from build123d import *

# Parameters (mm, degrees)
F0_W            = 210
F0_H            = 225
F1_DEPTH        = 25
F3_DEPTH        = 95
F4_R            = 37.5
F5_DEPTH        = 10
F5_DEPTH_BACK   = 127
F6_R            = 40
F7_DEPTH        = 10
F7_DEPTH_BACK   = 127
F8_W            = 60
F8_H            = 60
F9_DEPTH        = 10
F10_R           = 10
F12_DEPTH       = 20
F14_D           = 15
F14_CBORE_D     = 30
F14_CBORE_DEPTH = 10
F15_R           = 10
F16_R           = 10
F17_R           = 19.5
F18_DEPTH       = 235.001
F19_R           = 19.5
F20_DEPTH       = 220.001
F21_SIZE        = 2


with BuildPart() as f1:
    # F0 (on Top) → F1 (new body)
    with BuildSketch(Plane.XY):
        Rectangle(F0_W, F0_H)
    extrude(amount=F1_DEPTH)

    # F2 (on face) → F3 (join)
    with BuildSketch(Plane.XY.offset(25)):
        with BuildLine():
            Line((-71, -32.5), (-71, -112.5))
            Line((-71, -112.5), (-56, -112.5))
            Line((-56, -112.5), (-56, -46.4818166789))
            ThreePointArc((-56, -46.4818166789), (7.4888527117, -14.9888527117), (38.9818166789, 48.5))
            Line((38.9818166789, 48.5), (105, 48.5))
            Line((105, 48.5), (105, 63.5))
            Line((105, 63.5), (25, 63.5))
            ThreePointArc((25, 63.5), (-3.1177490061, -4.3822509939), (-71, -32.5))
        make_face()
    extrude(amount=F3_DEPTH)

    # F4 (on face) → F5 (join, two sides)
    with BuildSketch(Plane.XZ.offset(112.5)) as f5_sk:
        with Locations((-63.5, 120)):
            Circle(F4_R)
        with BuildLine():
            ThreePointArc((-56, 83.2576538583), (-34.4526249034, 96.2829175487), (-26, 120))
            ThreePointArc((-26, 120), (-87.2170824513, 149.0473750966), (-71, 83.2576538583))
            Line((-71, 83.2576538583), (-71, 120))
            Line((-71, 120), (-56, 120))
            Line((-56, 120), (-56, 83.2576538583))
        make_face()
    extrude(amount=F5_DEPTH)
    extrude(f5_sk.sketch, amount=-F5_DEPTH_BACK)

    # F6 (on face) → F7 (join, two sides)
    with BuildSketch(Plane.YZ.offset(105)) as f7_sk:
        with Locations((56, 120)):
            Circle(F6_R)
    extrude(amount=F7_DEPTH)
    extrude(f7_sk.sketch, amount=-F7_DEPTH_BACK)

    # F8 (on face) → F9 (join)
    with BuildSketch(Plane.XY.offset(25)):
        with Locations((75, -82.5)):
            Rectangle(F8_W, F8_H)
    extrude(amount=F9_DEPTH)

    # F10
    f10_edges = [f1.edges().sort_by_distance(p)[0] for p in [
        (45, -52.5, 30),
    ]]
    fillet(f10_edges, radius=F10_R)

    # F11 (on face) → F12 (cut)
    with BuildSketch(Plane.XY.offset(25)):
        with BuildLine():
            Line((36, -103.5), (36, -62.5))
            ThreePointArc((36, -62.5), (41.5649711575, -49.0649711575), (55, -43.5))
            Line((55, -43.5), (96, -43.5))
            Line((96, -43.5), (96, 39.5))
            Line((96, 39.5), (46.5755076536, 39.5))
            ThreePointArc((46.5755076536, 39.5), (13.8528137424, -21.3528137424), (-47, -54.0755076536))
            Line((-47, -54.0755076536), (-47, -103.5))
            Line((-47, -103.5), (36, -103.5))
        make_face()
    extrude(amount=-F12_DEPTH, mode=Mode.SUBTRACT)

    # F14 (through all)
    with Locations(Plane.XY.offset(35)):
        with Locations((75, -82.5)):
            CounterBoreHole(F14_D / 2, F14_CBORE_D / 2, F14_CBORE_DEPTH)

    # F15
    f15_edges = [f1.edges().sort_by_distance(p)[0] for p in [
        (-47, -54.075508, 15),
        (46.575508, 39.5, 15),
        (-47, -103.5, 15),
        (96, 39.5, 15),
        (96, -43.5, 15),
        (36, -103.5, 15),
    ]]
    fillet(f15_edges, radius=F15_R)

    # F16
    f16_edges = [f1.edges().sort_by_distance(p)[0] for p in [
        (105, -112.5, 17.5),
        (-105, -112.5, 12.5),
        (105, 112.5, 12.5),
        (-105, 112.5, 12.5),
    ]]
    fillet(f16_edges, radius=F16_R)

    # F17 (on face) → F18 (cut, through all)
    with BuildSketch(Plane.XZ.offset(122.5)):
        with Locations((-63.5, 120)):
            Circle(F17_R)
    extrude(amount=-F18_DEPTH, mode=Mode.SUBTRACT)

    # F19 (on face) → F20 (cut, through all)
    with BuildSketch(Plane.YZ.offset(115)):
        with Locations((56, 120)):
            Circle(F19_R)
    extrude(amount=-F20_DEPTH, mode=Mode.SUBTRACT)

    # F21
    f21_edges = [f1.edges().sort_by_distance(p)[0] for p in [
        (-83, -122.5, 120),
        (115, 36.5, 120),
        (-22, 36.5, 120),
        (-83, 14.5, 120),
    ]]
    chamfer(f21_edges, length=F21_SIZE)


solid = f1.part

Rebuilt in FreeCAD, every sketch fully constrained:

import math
import FreeCAD as App
import Part
import Sketcher

V = App.Vector


def edges_at(feature, points):
    """Names of the edges that pass closest to the given points."""
    edges = feature.Shape.Edges
    near = lambda p: min(range(len(edges)), key=lambda i: edges[i].distToShape(Part.Vertex(*p))[0])
    return sorted({f"Edge{near(p) + 1}" for p in points})

doc = App.newDocument("Part")
body = doc.addObject("PartDesign::Body", "Body")

# Sketch on XY plane
sketch1 = doc.addObject("Sketcher::SketchObject", "Sketch")
body.addObject(sketch1)
sketch1.AttachmentSupport = (doc.XY_Plane, [""])
sketch1.MapMode = "FlatFace"
sketch1.addGeometry([
    Part.LineSegment(V(-105, 112.5, 0), V(-105, -112.5, 0)),
    Part.LineSegment(V(-105, -112.5, 0), V(105, -112.5, 0)),
    Part.LineSegment(V(105, -112.5, 0), V(105, 112.5, 0)),
    Part.LineSegment(V(105, 112.5, 0), V(-105, 112.5, 0)),
], False)
sketch1.addConstraint([
    Sketcher.Constraint("Coincident", 0, 2, 1, 1),
    Sketcher.Constraint("Coincident", 1, 2, 2, 1),
    Sketcher.Constraint("Coincident", 2, 2, 3, 1),
    Sketcher.Constraint("Coincident", 3, 2, 0, 1),
    Sketcher.Constraint("Vertical", 0),
    Sketcher.Constraint("Horizontal", 1),
    Sketcher.Constraint("Vertical", 2),
    Sketcher.Constraint("Horizontal", 3),
    Sketcher.Constraint("Symmetric", 0, 2, 2, 2, -1, 1),
    Sketcher.Constraint("DistanceX", 1, 1, 1, 2, 210.0),
    Sketcher.Constraint("DistanceY", 0, 2, 0, 1, 225.0),
])
pad1 = doc.addObject("PartDesign::Pad", "Pad")
body.addObject(pad1)
pad1.Profile = sketch1
pad1.Length = 25

# Sketch on XY plane
sketch2 = doc.addObject("Sketcher::SketchObject", "Sketch001")
body.addObject(sketch2)
sketch2.AttachmentSupport = (doc.XY_Plane, [""])
sketch2.MapMode = "FlatFace"
sketch2.AttachmentOffset = App.Placement(V(0, 0, 25), App.Rotation())
sketch2.addGeometry([
    Part.LineSegment(V(-71, -32.5, 0), V(-71, -112.5, 0)),  # 0
    Part.LineSegment(V(-71, -112.5, 0), V(-56, -112.5, 0)),  # 1
    Part.LineSegment(V(-56, -112.5, 0), V(-56, -46.481817, 0)),  # 2
    Part.ArcOfCircle(Part.Circle(V(-71, 63.5, 0), V(0, 0, 1), 111), math.radians(-82.233566), math.radians(-7.766434)),  # 3
    Part.LineSegment(V(38.981817, 48.5, 0), V(105, 48.5, 0)),  # 4
    Part.LineSegment(V(105, 48.5, 0), V(105, 63.5, 0)),  # 5
    Part.LineSegment(V(105, 63.5, 0), V(25, 63.5, 0)),  # 6
    Part.ArcOfCircle(Part.Circle(V(-71, 63.5, 0), V(0, 0, 1), 96), math.radians(-90), math.radians(0)),  # 7
], False)
sketch2.addConstraint([
    Sketcher.Constraint("Coincident", 0, 2, 1, 1),
    Sketcher.Constraint("Coincident", 1, 2, 2, 1),
    Sketcher.Constraint("Coincident", 2, 2, 3, 1),
    Sketcher.Constraint("Coincident", 3, 2, 4, 1),
    Sketcher.Constraint("Coincident", 4, 2, 5, 1),
    Sketcher.Constraint("Coincident", 5, 2, 6, 1),
    Sketcher.Constraint("Coincident", 6, 2, 7, 2),
    Sketcher.Constraint("Coincident", 7, 1, 0, 1),
    Sketcher.Constraint("Vertical", 0),
    Sketcher.Constraint("Horizontal", 1),
    Sketcher.Constraint("Vertical", 2),
    Sketcher.Constraint("Horizontal", 4),
    Sketcher.Constraint("Vertical", 5),
    Sketcher.Constraint("Horizontal", 6),
    Sketcher.Constraint("Coincident", 7, 3, 3, 3),
    Sketcher.Constraint("Horizontal", 7, 3, 5, 2),
    Sketcher.Constraint("Vertical", 7, 3, 0, 2),
    Sketcher.Constraint("Equal", 6, 0),
    Sketcher.Constraint("Equal", 4, 2),
    Sketcher.Constraint("Radius", 3, 111.0),
    Sketcher.Constraint("Radius", 7, 96.0),
    Sketcher.Constraint("DistanceX", 1, 1, 1, 2, 15.0),
    Sketcher.Constraint("DistanceX", 6, 2, 6, 1, 80.0),
    Sketcher.Constraint("DistanceX", 3, 3, -1, 1, 71.0),
    Sketcher.Constraint("DistanceY", -1, 1, 3, 3, 63.5),
])
pad2 = doc.addObject("PartDesign::Pad", "Pad001")
body.addObject(pad2)
pad2.Profile = sketch2
pad2.Length = 95

# Sketch on XZ plane
sketch3 = doc.addObject("Sketcher::SketchObject", "Sketch002")
body.addObject(sketch3)
sketch3.AttachmentSupport = (doc.XZ_Plane, [""])
sketch3.MapMode = "FlatFace"
sketch3.AttachmentOffset = App.Placement(V(0, 0, 112.5), App.Rotation())
sketch3.addGeometry(Part.Circle(V(-63.5, 120, 0), V(0, 0, 1), 37.5), False)
sketch3.addConstraint([
    Sketcher.Constraint("Diameter", 0, 75.0),
    Sketcher.Constraint("DistanceY", -1, 1, 0, 3, 120.0),
    Sketcher.Constraint("DistanceX", 0, 3, -1, 1, 63.5),
])
pad3 = doc.addObject("PartDesign::Pad", "Pad002")
body.addObject(pad3)
pad3.Profile = sketch3
pad3.Type = "TwoLengths"
pad3.Length = 10
pad3.Length2 = 127

# Sketch on YZ plane
sketch4 = doc.addObject("Sketcher::SketchObject", "Sketch003")
body.addObject(sketch4)
sketch4.AttachmentSupport = (doc.YZ_Plane, [""])
sketch4.MapMode = "FlatFace"
sketch4.AttachmentOffset = App.Placement(V(0, 0, 105), App.Rotation())
sketch4.addGeometry(Part.Circle(V(56, 120, 0), V(0, 0, 1), 40), False)
sketch4.addConstraint([
    Sketcher.Constraint("Diameter", 0, 80.0),
    Sketcher.Constraint("DistanceX", -1, 1, 0, 3, 56.0),
    Sketcher.Constraint("DistanceY", -1, 1, 0, 3, 120.0),
])
pad4 = doc.addObject("PartDesign::Pad", "Pad003")
body.addObject(pad4)
pad4.Profile = sketch4
pad4.Type = "TwoLengths"
pad4.Length = 10
pad4.Length2 = 127

# Sketch on XY plane
sketch5 = doc.addObject("Sketcher::SketchObject", "Sketch004")
body.addObject(sketch5)
sketch5.AttachmentSupport = (doc.XY_Plane, [""])
sketch5.MapMode = "FlatFace"
sketch5.AttachmentOffset = App.Placement(V(0, 0, 25), App.Rotation())
sketch5.addGeometry([
    Part.LineSegment(V(45, -52.5, 0), V(45, -112.5, 0)),
    Part.LineSegment(V(45, -112.5, 0), V(105, -112.5, 0)),
    Part.LineSegment(V(105, -112.5, 0), V(105, -52.5, 0)),
    Part.LineSegment(V(105, -52.5, 0), V(45, -52.5, 0)),
], False)
sketch5.addConstraint([
    Sketcher.Constraint("Coincident", 0, 2, 1, 1),
    Sketcher.Constraint("Coincident", 1, 2, 2, 1),
    Sketcher.Constraint("Coincident", 2, 2, 3, 1),
    Sketcher.Constraint("Coincident", 3, 2, 0, 1),
    Sketcher.Constraint("Vertical", 0),
    Sketcher.Constraint("Horizontal", 1),
    Sketcher.Constraint("Vertical", 2),
    Sketcher.Constraint("Horizontal", 3),
    Sketcher.Constraint("Equal", 3, 0),
    Sketcher.Constraint("DistanceX", 1, 1, 1, 2, 60.0),
    Sketcher.Constraint("DistanceX", -1, 1, 0, 2, 45.0),
    Sketcher.Constraint("DistanceY", 0, 2, -1, 1, 112.5),
])
pad5 = doc.addObject("PartDesign::Pad", "Pad004")
body.addObject(pad5)
pad5.Profile = sketch5
pad5.Length = 10
doc.recompute()

fillet = doc.addObject("PartDesign::Fillet", "Fillet")
body.addObject(fillet)
fillet.Base = (pad5, edges_at(pad5, [(45, -52.5, 30)]))
fillet.Radius = 10

# Sketch on XY plane
sketch6 = doc.addObject("Sketcher::SketchObject", "Sketch005")
body.addObject(sketch6)
sketch6.AttachmentSupport = (doc.XY_Plane, [""])
sketch6.MapMode = "FlatFace"
sketch6.AttachmentOffset = App.Placement(V(0, 0, 25), App.Rotation())
sketch6.addGeometry([
    Part.LineSegment(V(36, -103.5, 0), V(36, -62.5, 0)),  # 0
    Part.ArcOfCircle(Part.Circle(V(55, -62.5, 0), V(0, 0, 1), 19), math.radians(90), math.radians(180)),  # 1
    Part.LineSegment(V(55, -43.5, 0), V(96, -43.5, 0)),  # 2
    Part.LineSegment(V(96, -43.5, 0), V(96, 39.5, 0)),  # 3
    Part.LineSegment(V(96, 39.5, 0), V(46.575508, 39.5, 0)),  # 4
    Part.ArcOfCircle(Part.Circle(V(-71, 63.5, 0), V(0, 0, 1), 120), math.radians(-78.463041), math.radians(-11.536959)),  # 5
    Part.LineSegment(V(-47, -54.075508, 0), V(-47, -103.5, 0)),  # 6
    Part.LineSegment(V(-47, -103.5, 0), V(36, -103.5, 0)),  # 7
], False)
sketch6.addConstraint([
    Sketcher.Constraint("Tangent", 0, 2, 1, 2),
    Sketcher.Constraint("Tangent", 1, 1, 2, 1),
    Sketcher.Constraint("Coincident", 2, 2, 3, 1),
    Sketcher.Constraint("Coincident", 3, 2, 4, 1),
    Sketcher.Constraint("Coincident", 4, 2, 5, 2),
    Sketcher.Constraint("Coincident", 5, 1, 6, 1),
    Sketcher.Constraint("Coincident", 6, 2, 7, 1),
    Sketcher.Constraint("Coincident", 7, 2, 0, 1),
    Sketcher.Constraint("Vertical", 0),
    Sketcher.Constraint("Horizontal", 2),
    Sketcher.Constraint("Vertical", 3),
    Sketcher.Constraint("Horizontal", 4),
    Sketcher.Constraint("Vertical", 6),
    Sketcher.Constraint("Horizontal", 7),
    Sketcher.Constraint("Equal", 2, 0),
    Sketcher.Constraint("Equal", 7, 3),
    Sketcher.Constraint("Equal", 4, 6),
    Sketcher.Constraint("Radius", 1, 19.0),
    Sketcher.Constraint("Radius", 5, 120.0),
    Sketcher.Constraint("DistanceX", 2, 1, 2, 2, 41.0),
    Sketcher.Constraint("DistanceX", 7, 1, 7, 2, 83.0),
    Sketcher.Constraint("DistanceX", -1, 1, 1, 3, 55.0),
    Sketcher.Constraint("DistanceX", 5, 3, -1, 1, 71.0),
    Sketcher.Constraint("DistanceY", 1, 3, -1, 1, 62.5),
])
pocket1 = doc.addObject("PartDesign::Pocket", "Pocket")
body.addObject(pocket1)
pocket1.Profile = sketch6
pocket1.Length = 20

# Sketch on XY plane
sketch7 = doc.addObject("Sketcher::SketchObject", "Sketch006")
body.addObject(sketch7)
sketch7.AttachmentSupport = (doc.XY_Plane, [""])
sketch7.MapMode = "FlatFace"
sketch7.AttachmentOffset = App.Placement(V(0, 0, 35), App.Rotation())
sketch7.addGeometry(Part.Circle(V(75, -82.5, 0), V(0, 0, 1), 7.5), False)
sketch7.addConstraint([
    Sketcher.Constraint("Diameter", 0, 15.0),
    Sketcher.Constraint("DistanceX", -1, 1, 0, 3, 75.0),
    Sketcher.Constraint("DistanceY", 0, 3, -1, 1, 82.5),
])
doc.recompute()
hole = doc.addObject("PartDesign::Hole", "Hole")
body.addObject(hole)
hole.Profile = sketch7
hole.ThreadType = "None"
hole.Diameter = 15
hole.DepthType = "ThroughAll"
hole.HoleCutType = "Counterbore"
hole.HoleCutDiameter = 30
hole.HoleCutDepth = 10
doc.recompute()

fillet2 = doc.addObject("PartDesign::Fillet", "Fillet001")
body.addObject(fillet2)
fillet2.Base = (hole, edges_at(hole, [
    (-47, -54.076, 15),
    (46.576, 39.5, 15),
    (-47, -103.5, 15),
    (96, 39.5, 15),
    (96, -43.5, 15),
    (36, -103.5, 15),
]))
fillet2.Radius = 10
doc.recompute()

fillet3 = doc.addObject("PartDesign::Fillet", "Fillet002")
body.addObject(fillet3)
fillet3.Base = (fillet2, edges_at(fillet2, [
    (105, -112.5, 17.5),
    (-105, -112.5, 12.5),
    (105, 112.5, 12.5),
    (-105, 112.5, 12.5),
]))
fillet3.Radius = 10

# Sketch on XZ plane
sketch8 = doc.addObject("Sketcher::SketchObject", "Sketch007")
body.addObject(sketch8)
sketch8.AttachmentSupport = (doc.XZ_Plane, [""])
sketch8.MapMode = "FlatFace"
sketch8.AttachmentOffset = App.Placement(V(0, 0, 122.5), App.Rotation())
sketch8.addGeometry(Part.Circle(V(-63.5, 120, 0), V(0, 0, 1), 19.5), False)
sketch8.addConstraint([
    Sketcher.Constraint("Diameter", 0, 39.0),
    Sketcher.Constraint("DistanceY", -1, 1, 0, 3, 120.0),
    Sketcher.Constraint("DistanceX", 0, 3, -1, 1, 63.5),
])
pocket2 = doc.addObject("PartDesign::Pocket", "Pocket001")
body.addObject(pocket2)
pocket2.Profile = sketch8
pocket2.Type = "ThroughAll"

# Sketch on YZ plane
sketch9 = doc.addObject("Sketcher::SketchObject", "Sketch008")
body.addObject(sketch9)
sketch9.AttachmentSupport = (doc.YZ_Plane, [""])
sketch9.MapMode = "FlatFace"
sketch9.AttachmentOffset = App.Placement(V(0, 0, 115), App.Rotation())
sketch9.addGeometry(Part.Circle(V(56, 120, 0), V(0, 0, 1), 19.5), False)
sketch9.addConstraint([
    Sketcher.Constraint("Diameter", 0, 39.0),
    Sketcher.Constraint("DistanceX", -1, 1, 0, 3, 56.0),
    Sketcher.Constraint("DistanceY", -1, 1, 0, 3, 120.0),
])
pocket3 = doc.addObject("PartDesign::Pocket", "Pocket002")
body.addObject(pocket3)
pocket3.Profile = sketch9
pocket3.Type = "ThroughAll"
doc.recompute()

chamfer = doc.addObject("PartDesign::Chamfer", "Chamfer")
body.addObject(chamfer)
chamfer.Base = (pocket3, edges_at(pocket3, [
    (-83, -122.5, 120),
    (115, 36.5, 120),
    (-22, 36.5, 120),
    (-83, 14.5, 120),
]))
chamfer.Size = 2

doc.recompute()
